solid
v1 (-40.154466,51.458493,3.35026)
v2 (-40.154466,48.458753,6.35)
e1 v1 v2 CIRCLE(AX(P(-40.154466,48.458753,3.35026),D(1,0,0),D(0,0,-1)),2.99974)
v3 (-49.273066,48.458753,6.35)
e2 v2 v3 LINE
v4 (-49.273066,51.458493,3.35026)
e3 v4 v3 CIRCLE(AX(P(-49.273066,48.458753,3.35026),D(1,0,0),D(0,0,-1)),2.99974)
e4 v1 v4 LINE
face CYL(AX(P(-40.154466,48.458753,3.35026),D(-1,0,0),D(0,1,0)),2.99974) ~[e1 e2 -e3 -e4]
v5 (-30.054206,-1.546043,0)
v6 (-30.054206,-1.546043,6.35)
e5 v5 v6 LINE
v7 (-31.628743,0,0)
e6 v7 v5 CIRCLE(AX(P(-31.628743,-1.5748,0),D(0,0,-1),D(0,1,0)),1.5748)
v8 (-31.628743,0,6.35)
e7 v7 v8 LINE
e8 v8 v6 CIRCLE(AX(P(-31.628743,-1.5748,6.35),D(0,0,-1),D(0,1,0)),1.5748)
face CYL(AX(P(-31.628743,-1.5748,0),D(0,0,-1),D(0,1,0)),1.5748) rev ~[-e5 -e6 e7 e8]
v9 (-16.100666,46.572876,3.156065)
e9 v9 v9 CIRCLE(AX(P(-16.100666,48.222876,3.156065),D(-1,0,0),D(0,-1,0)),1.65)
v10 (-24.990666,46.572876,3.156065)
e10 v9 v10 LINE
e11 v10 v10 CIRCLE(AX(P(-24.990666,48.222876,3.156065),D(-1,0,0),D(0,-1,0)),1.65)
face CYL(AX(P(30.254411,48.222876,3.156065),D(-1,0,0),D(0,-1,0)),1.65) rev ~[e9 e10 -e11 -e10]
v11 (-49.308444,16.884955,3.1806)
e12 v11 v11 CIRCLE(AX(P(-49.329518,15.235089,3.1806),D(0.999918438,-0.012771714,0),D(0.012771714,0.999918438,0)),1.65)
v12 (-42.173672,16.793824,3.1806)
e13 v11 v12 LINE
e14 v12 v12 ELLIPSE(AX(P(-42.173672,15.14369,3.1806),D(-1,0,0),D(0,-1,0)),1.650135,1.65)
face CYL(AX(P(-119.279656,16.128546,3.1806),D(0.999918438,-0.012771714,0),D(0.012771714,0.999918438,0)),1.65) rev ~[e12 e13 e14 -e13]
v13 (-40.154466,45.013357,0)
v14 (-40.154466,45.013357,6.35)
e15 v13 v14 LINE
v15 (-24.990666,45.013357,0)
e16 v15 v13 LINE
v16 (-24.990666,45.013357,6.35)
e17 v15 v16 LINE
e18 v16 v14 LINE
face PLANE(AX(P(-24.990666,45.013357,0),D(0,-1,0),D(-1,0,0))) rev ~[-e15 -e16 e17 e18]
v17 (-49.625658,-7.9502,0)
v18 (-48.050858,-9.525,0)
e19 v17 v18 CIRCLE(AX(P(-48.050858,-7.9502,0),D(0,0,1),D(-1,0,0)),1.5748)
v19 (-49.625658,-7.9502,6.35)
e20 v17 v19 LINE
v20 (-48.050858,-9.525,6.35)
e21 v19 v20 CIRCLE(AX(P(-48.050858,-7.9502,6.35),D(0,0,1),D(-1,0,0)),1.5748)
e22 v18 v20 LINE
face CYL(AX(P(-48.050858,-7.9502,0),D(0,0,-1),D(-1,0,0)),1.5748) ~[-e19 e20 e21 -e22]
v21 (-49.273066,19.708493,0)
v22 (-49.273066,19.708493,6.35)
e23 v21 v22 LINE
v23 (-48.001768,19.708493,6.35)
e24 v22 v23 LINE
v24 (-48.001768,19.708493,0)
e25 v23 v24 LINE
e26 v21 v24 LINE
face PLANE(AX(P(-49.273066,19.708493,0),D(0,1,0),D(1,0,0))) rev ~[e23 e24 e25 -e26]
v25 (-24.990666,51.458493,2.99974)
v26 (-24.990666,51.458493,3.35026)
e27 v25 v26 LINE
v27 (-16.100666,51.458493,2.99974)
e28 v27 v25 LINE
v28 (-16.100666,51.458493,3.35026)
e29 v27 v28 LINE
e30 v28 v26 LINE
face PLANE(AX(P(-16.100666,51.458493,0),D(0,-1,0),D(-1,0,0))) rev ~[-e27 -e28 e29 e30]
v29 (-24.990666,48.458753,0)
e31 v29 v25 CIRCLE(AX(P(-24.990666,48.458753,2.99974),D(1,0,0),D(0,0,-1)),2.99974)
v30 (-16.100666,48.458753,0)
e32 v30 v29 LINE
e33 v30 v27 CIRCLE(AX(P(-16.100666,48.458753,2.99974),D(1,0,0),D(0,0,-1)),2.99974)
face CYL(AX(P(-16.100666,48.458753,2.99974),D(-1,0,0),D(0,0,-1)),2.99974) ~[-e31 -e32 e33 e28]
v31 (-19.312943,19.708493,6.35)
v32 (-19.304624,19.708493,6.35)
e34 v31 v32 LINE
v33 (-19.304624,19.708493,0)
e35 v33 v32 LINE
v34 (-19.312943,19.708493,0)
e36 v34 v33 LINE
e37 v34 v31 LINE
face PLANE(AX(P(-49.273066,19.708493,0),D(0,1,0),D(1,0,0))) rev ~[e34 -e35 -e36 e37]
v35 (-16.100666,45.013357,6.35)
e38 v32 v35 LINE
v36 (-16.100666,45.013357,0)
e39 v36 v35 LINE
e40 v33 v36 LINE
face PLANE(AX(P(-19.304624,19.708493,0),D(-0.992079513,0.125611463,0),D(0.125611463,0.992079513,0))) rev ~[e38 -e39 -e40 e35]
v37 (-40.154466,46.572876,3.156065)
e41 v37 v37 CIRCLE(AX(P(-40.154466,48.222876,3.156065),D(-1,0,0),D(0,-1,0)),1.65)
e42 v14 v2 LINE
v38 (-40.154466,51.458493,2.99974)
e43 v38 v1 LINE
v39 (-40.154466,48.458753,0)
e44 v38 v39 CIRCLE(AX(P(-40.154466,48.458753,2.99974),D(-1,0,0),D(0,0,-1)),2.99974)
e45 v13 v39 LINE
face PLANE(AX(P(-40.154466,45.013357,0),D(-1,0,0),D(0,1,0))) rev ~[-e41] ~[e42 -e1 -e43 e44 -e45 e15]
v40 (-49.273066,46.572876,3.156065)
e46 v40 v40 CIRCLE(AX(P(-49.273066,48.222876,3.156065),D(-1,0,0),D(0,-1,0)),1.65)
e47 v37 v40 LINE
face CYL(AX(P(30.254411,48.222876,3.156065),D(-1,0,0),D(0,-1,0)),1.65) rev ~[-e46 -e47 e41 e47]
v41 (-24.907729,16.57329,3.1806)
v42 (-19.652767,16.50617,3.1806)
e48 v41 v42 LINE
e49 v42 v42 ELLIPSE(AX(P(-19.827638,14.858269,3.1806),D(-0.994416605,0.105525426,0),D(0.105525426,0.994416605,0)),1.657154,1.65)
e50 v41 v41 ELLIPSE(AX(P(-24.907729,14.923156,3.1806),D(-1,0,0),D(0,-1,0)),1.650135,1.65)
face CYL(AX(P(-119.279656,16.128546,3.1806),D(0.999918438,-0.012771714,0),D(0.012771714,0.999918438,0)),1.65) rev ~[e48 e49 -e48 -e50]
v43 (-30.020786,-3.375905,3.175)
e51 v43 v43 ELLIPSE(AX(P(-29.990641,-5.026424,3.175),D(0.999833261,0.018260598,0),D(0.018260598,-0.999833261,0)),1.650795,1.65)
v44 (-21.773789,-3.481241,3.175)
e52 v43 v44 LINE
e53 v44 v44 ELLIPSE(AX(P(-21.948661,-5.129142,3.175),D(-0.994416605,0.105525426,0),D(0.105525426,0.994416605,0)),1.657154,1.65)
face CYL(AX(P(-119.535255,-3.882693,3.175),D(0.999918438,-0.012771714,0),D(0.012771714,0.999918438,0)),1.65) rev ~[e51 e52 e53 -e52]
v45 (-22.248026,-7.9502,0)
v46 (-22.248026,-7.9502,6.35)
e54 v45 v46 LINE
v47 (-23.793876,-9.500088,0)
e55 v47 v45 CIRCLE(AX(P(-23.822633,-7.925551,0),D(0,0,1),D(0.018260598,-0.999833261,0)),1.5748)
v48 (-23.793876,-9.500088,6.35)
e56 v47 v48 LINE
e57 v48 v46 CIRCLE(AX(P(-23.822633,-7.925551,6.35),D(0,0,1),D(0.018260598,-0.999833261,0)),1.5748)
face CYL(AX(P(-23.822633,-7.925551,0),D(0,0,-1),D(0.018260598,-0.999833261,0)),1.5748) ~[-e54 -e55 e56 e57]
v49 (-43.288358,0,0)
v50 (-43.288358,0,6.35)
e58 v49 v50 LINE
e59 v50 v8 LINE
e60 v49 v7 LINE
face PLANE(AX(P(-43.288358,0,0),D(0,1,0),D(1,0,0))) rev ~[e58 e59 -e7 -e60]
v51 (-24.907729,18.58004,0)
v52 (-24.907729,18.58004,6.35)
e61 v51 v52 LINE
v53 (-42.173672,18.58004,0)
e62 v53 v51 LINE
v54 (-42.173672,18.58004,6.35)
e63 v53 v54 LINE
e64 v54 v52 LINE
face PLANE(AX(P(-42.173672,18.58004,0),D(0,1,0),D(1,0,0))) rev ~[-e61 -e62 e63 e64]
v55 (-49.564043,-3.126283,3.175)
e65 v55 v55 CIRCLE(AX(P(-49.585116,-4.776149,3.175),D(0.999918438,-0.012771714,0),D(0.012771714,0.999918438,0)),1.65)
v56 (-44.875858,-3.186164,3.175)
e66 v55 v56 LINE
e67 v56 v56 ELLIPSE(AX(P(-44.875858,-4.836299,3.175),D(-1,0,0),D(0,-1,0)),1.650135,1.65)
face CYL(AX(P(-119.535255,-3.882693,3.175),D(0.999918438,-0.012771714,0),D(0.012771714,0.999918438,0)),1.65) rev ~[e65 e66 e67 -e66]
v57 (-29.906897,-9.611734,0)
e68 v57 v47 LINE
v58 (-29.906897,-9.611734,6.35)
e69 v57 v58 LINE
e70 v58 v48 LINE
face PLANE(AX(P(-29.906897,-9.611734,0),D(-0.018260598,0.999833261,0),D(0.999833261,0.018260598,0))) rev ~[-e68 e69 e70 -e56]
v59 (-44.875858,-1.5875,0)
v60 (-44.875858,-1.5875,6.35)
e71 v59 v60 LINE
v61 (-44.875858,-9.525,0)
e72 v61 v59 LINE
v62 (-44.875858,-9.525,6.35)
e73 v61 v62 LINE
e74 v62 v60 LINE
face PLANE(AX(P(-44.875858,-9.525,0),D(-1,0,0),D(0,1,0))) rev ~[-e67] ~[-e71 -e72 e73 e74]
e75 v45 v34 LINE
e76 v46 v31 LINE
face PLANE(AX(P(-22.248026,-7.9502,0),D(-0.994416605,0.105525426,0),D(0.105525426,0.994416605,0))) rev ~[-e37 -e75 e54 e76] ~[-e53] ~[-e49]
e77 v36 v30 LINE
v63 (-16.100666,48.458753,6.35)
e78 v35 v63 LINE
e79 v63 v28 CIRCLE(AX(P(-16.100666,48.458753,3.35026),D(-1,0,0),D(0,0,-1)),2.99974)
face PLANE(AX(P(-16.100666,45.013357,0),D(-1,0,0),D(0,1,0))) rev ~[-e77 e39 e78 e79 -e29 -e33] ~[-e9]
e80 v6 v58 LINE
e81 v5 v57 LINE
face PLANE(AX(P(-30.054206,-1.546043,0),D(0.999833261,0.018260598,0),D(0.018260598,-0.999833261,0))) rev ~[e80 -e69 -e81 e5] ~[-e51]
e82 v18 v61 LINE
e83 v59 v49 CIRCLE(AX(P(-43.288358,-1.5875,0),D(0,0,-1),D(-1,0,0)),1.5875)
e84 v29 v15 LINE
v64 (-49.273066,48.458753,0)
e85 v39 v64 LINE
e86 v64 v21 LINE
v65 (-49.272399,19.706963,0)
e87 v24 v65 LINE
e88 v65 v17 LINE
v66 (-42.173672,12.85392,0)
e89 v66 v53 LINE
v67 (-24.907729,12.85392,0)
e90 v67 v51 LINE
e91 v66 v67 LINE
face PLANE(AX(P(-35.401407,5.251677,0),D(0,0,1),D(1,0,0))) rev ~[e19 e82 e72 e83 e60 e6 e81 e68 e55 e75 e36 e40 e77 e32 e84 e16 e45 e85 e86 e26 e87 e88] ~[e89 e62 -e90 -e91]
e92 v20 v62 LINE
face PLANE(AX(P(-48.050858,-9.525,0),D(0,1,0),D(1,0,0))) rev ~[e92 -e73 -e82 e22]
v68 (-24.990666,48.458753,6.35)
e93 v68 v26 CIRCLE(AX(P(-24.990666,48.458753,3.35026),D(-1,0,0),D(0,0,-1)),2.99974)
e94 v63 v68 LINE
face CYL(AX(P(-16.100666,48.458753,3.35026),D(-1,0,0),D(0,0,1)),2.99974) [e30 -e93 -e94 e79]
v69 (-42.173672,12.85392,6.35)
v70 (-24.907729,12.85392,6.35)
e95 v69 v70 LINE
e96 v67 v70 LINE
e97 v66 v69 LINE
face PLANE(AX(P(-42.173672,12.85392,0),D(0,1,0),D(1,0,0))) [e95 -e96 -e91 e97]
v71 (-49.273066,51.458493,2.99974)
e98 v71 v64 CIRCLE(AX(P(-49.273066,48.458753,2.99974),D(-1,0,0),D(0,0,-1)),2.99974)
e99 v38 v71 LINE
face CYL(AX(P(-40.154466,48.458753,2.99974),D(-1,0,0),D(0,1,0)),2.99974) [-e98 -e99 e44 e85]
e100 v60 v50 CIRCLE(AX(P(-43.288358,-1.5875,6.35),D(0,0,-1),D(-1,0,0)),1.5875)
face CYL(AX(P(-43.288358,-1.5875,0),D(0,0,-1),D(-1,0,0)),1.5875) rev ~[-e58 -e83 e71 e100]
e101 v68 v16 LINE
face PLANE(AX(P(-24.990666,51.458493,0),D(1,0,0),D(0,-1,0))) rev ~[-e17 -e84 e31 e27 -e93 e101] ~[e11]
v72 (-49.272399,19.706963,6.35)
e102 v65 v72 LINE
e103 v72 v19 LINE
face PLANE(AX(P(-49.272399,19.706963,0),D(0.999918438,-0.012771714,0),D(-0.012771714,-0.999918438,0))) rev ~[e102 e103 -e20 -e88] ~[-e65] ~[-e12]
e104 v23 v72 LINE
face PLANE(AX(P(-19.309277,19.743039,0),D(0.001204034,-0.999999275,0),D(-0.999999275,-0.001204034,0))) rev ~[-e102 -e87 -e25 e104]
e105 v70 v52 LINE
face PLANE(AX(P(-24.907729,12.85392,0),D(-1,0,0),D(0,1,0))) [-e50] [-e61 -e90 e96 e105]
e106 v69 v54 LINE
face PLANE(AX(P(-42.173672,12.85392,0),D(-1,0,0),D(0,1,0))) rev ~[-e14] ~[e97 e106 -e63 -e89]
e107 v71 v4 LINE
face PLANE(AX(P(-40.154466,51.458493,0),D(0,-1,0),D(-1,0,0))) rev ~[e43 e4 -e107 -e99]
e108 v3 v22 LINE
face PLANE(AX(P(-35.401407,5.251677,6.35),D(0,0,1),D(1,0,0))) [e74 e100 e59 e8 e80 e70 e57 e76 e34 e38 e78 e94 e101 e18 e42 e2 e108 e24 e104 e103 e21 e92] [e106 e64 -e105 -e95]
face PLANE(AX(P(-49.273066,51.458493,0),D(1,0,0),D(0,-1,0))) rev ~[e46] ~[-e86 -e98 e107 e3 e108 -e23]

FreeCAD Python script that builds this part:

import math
import FreeCAD as App
import Part
import Sketcher
from FreeCAD import Vector
Q = App.Units.Quantity


def edges_at(feature, points):
    """Names of the edges that pass closest to the given points."""
    edges = feature.Shape.Edges
    near = lambda p: min(range(len(edges)), key=lambda i: edges[i].distToShape(Part.Vertex(*p))[0])
    return sorted({f"Edge{near(p) + 1}" for p in points})


def add_polygon(sketch, points):
    """Adds a closed chain of lines whose ends are joined by coincident constraints."""
    first, n = sketch.GeometryCount, len(points)
    for a, b in zip(points, points[1:] + points[:1]):
        sketch.addGeometry(Part.LineSegment(App.Vector(*a, 0), App.Vector(*b, 0)), False)
    for i in range(n):
        sketch.addConstraint(Sketcher.Constraint("Coincident", first + i, 2, first + (i + 1) % n, 1))

doc = App.newDocument("Part")
body = doc.addObject("PartDesign::Body", "Body")

sketch1 = doc.addObject("Sketcher::SketchObject", "Sketch")
body.addObject(sketch1)
sketch1.AttachmentSupport = (doc.XY_Plane, [""])
sketch1.MapMode = "FlatFace"
add_polygon(sketch1, [(-40, 51), (-49, 51), (-49, 20), (-19, 20), (-16, 45), (-16, 51), (-25, 51), (-25, 45), (-40, 45)])
sketch1.addConstraint([
    Sketcher.Constraint("Horizontal", 0),
    Sketcher.Constraint("Vertical", 1),
    Sketcher.Constraint("Horizontal", 2),
    Sketcher.Constraint("Vertical", 4),
    Sketcher.Constraint("Horizontal", 5),
    Sketcher.Constraint("Vertical", 6),
    Sketcher.Constraint("Horizontal", 7),
    Sketcher.Constraint("Vertical", 8),
    Sketcher.Constraint("Horizontal", 0, 2, 4, 2),
    Sketcher.Constraint("Horizontal", 3, 2, 6, 2),
    Sketcher.Constraint("DistanceX", 5, 2, 5, 1, Q("0.35 in")),
    Sketcher.Constraint("DistanceY", 1, 2, 1, 1, Q("1.25 in")),
    Sketcher.Constraint("DistanceX", 0, 2, 0, 1, Q("0.359 in")),
    Sketcher.Constraint("DistanceX", 7, 2, 7, 1, Q("0.597 in")),
    Sketcher.Constraint("Distance", 3, 25.506891),
    Sketcher.Constraint("DistanceX", 2, 1, 2, 2, 29.968442),
    Sketcher.Constraint("DistanceX", 0, 2, -1, 1, 49.273066),
    Sketcher.Constraint("DistanceY", -1, 1, 0, 2, 51.458493),
])
pad1 = doc.addObject("PartDesign::Pad", "Pad")
body.addObject(pad1)
pad1.Profile = sketch1
pad1.Length = Q("0.25 in")

sketch2 = doc.addObject("Sketcher::SketchObject", "Sketch001")
body.addObject(sketch2)
sketch2.AttachmentSupport = (doc.YZ_Plane, [""])
sketch2.MapMode = "FlatFace"
sketch2.AttachmentOffset = App.Placement(Vector(0, 0, -16.100666), App.Rotation())
sketch2.addGeometry(Part.Circle(Vector(48.2, 3.2, 0), Vector(0, 0, 1), 1.6), False)
sketch2.addConstraint([
    Sketcher.Constraint("Diameter", 0, 3.3),
    Sketcher.Constraint("DistanceX", -1, 1, 0, 3, 48.222876),
    Sketcher.Constraint("DistanceY", -1, 1, 0, 3, 3.156065),
])
doc.recompute()
hole = doc.addObject("PartDesign::Hole", "Hole")
body.addObject(hole)
hole.Profile = sketch2
hole.ThreadType = "None"
hole.Diameter = 3.3
hole.DepthType = "ThroughAll"
doc.recompute()

fillet = doc.addObject("PartDesign::Fillet", "Fillet")
body.addObject(fillet)
fillet.Base = (hole, edges_at(hole, [
    (-20.546, 51.458, 0),
    (-20.546, 51.458, 6.35),
    (-44.714, 51.458, 0),
    (-44.714, 51.458, 6.35),
]))
fillet.Radius = Q("0.1181 in")

sketch3 = doc.addObject("Sketcher::SketchObject", "Sketch002")
body.addObject(sketch3)
sketch3.AttachmentSupport = (doc.XY_Plane, [""])
sketch3.MapMode = "FlatFace"
sketch3.addGeometry(Part.LineSegment(Vector(-48.1, -9.5, 0), Vector(-44.9, -9.5, 0)), False)
sketch3.addGeometry(Part.LineSegment(Vector(-44.9, -9.5, 0), Vector(-44.9, -1.6, 0)), False)
sketch3.addGeometry(Part.ArcOfCircle(Part.Circle(Vector(-43.3, -1.6, 0), Vector(0, 0, 1), 1.6), math.radians(90), math.radians(180)), False)
sketch3.addGeometry(Part.LineSegment(Vector(-43.3, 0, 0), Vector(-31.6, 0, 0)), False)
sketch3.addGeometry(Part.ArcOfCircle(Part.Circle(Vector(-31.6, -1.6, 0), Vector(0, 0, 1), 1.6), math.radians(1), math.radians(90)), False)
sketch3.addGeometry(Part.LineSegment(Vector(-30.1, -1.5, 0), Vector(-29.9, -9.6, 0)), False)
sketch3.addGeometry(Part.LineSegment(Vector(-29.9, -9.6, 0), Vector(-23.8, -9.5, 0)), False)
sketch3.addGeometry(Part.ArcOfCircle(Part.Circle(Vector(-23.8, -7.9, 0), Vector(0, 0, 1), 1.6), math.radians(-89), math.radians(-1)), False)
sketch3.addGeometry(Part.LineSegment(Vector(-22.2, -8, 0), Vector(-19.3, 19.7, 0)), False)
sketch3.addGeometry(Part.LineSegment(Vector(-19.3, 19.7, 0), Vector(-49.3, 19.7, 0)), False)
sketch3.addGeometry(Part.LineSegment(Vector(-49.3, 19.7, 0), Vector(-49.6, -8, 0)), False)
sketch3.addGeometry(Part.ArcOfCircle(Part.Circle(Vector(-48.1, -8, 0), Vector(0, 0, 1), 1.6), math.radians(180), math.radians(270)), False)
add_polygon(sketch3, [(-24.9, 12.9), (-42.2, 12.9), (-42.2, 18.6), (-24.9, 18.6)])
sketch3.addConstraint([
    Sketcher.Constraint("Coincident", 0, 2, 1, 1),
    Sketcher.Constraint("Tangent", 1, 2, 2, 2),
    Sketcher.Constraint("Tangent", 2, 1, 3, 1),
    Sketcher.Constraint("Tangent", 3, 2, 4, 2),
    Sketcher.Constraint("Tangent", 4, 1, 5, 1),
    Sketcher.Constraint("Coincident", 5, 2, 6, 1),
    Sketcher.Constraint("Tangent", 6, 2, 7, 1),
    Sketcher.Constraint("Coincident", 7, 2, 8, 1),
    Sketcher.Constraint("Coincident", 8, 2, 9, 1),
    Sketcher.Constraint("Coincident", 9, 2, 10, 1),
    Sketcher.Constraint("Coincident", 10, 2, 11, 1),
    Sketcher.Constraint("Tangent", 11, 2, 0, 1),
    Sketcher.Constraint("Horizontal", 0),
    Sketcher.Constraint("Vertical", 1),
    Sketcher.Constraint("Horizontal", 3),
    Sketcher.Constraint("Horizontal", 12),
    Sketcher.Constraint("Vertical", 13),
    Sketcher.Constraint("Horizontal", 14),
    Sketcher.Constraint("Vertical", 15),
    Sketcher.Constraint("Equal", 4, 7),
    Sketcher.Constraint("Equal", 7, 11),
    Sketcher.Constraint("PointOnObject", 2, 1, -1),
    Sketcher.Constraint("Perpendicular", 5, 6),
    Sketcher.Constraint("Horizontal", 11, 3, 7, 2),
    Sketcher.Constraint("Horizontal", 7, 2, 10, 2),
    Sketcher.Constraint("Radius", 2, Q("0.0625 in")),
    Sketcher.Constraint("Radius", 4, Q("0.062 in")),
    Sketcher.Constraint("DistanceX", 0, 1, 0, 2, Q("0.125 in")),
    Sketcher.Constraint("DistanceY", 1, 1, 1, 2, Q("0.3125 in")),
    Sketcher.Constraint("Distance", 5, Q("0.3175998 in")),
    Sketcher.Constraint("DistanceY", 13, 1, 13, 2, 5.72612),
    Sketcher.Constraint("DistanceX", 9, 2, -1, 1, 49.272399),
    Sketcher.Constraint("DistanceY", 14, 2, 8, 2, 1.162999),
    Sketcher.Constraint("Distance", 6, 6.11404),
    Sketcher.Constraint("Distance", 8, 27.84873),
    Sketcher.Constraint("Distance", 10, 27.659419),
    Sketcher.Constraint("DistanceX", 3, 1, 3, 2, 11.659614),
    Sketcher.Constraint("DistanceX", 12, 2, 12, 1, 17.265944),
    Sketcher.Constraint("DistanceY", 7, 3, -1, 1, 7.925551),
    Sketcher.Constraint("DistanceY", -1, 1, 8, 2, 19.743039),
    Sketcher.Constraint("DistanceX", 14, 2, -1, 1, 24.907729),
    Sketcher.Constraint("DistanceX", 9, 2, 2, 1, 5.984042),
])
pad2 = doc.addObject("PartDesign::Pad", "Pad001")
body.addObject(pad2)
pad2.Profile = sketch3
pad2.Length = Q("0.25 in")

sketch4 = doc.addObject("Sketcher::SketchObject", "Sketch003")
body.addObject(sketch4)
sketch4.Placement = App.Placement(Vector(-49.516033, 0.632456, 0), App.Rotation(Vector(-0.012771714, -0.999918438, 0), Vector(0, 0, 0.999999999), Vector(-0.999918438, 0.012771714, 0), "ZXY"))
sketch4.addGeometry(Part.Circle(Vector(5.4, 3.2, 0), Vector(0, 0, 1), 1.6), False)
sketch4.addConstraint([
    Sketcher.Constraint("Diameter", 0, 3.3),
    Sketcher.Constraint("DistanceY", -1, 1, 0, 3, Q("0.125 in")),
    Sketcher.Constraint("DistanceX", -1, 1, 0, 3, 5.409046),
])
doc.recompute()
hole2 = doc.addObject("PartDesign::Hole", "Hole001")
body.addObject(hole2)
hole2.Profile = sketch4
hole2.ThreadType = "None"
hole2.Diameter = 3.3
hole2.DepthType = "ThroughAll"

sketch5 = doc.addObject("Sketcher::SketchObject", "Sketch004")
body.addObject(sketch5)
sketch5.Placement = App.Placement(Vector(-49.516033, 0.632456, 0), App.Rotation(Vector(-0.012771714, -0.999918438, 0), Vector(0, 0, 0.999999999), Vector(-0.999918438, 0.012771714, 0), "ZXY"))
sketch5.addGeometry(Part.Circle(Vector(-14.6, 3.2, 0), Vector(0, 0, 1), 1.6), False)
sketch5.addConstraint([
    Sketcher.Constraint("Diameter", 0, 3.3),
    Sketcher.Constraint("DistanceY", -1, 1, 0, 3, 3.1806),
    Sketcher.Constraint("DistanceX", 0, 3, -1, 1, 14.603824),
])
doc.recompute()
hole3 = doc.addObject("PartDesign::Hole", "Hole002")
body.addObject(hole3)
hole3.Profile = sketch5
hole3.ThreadType = "None"
hole3.Diameter = 3.3
hole3.DepthType = "ThroughAll"

doc.recompute()
